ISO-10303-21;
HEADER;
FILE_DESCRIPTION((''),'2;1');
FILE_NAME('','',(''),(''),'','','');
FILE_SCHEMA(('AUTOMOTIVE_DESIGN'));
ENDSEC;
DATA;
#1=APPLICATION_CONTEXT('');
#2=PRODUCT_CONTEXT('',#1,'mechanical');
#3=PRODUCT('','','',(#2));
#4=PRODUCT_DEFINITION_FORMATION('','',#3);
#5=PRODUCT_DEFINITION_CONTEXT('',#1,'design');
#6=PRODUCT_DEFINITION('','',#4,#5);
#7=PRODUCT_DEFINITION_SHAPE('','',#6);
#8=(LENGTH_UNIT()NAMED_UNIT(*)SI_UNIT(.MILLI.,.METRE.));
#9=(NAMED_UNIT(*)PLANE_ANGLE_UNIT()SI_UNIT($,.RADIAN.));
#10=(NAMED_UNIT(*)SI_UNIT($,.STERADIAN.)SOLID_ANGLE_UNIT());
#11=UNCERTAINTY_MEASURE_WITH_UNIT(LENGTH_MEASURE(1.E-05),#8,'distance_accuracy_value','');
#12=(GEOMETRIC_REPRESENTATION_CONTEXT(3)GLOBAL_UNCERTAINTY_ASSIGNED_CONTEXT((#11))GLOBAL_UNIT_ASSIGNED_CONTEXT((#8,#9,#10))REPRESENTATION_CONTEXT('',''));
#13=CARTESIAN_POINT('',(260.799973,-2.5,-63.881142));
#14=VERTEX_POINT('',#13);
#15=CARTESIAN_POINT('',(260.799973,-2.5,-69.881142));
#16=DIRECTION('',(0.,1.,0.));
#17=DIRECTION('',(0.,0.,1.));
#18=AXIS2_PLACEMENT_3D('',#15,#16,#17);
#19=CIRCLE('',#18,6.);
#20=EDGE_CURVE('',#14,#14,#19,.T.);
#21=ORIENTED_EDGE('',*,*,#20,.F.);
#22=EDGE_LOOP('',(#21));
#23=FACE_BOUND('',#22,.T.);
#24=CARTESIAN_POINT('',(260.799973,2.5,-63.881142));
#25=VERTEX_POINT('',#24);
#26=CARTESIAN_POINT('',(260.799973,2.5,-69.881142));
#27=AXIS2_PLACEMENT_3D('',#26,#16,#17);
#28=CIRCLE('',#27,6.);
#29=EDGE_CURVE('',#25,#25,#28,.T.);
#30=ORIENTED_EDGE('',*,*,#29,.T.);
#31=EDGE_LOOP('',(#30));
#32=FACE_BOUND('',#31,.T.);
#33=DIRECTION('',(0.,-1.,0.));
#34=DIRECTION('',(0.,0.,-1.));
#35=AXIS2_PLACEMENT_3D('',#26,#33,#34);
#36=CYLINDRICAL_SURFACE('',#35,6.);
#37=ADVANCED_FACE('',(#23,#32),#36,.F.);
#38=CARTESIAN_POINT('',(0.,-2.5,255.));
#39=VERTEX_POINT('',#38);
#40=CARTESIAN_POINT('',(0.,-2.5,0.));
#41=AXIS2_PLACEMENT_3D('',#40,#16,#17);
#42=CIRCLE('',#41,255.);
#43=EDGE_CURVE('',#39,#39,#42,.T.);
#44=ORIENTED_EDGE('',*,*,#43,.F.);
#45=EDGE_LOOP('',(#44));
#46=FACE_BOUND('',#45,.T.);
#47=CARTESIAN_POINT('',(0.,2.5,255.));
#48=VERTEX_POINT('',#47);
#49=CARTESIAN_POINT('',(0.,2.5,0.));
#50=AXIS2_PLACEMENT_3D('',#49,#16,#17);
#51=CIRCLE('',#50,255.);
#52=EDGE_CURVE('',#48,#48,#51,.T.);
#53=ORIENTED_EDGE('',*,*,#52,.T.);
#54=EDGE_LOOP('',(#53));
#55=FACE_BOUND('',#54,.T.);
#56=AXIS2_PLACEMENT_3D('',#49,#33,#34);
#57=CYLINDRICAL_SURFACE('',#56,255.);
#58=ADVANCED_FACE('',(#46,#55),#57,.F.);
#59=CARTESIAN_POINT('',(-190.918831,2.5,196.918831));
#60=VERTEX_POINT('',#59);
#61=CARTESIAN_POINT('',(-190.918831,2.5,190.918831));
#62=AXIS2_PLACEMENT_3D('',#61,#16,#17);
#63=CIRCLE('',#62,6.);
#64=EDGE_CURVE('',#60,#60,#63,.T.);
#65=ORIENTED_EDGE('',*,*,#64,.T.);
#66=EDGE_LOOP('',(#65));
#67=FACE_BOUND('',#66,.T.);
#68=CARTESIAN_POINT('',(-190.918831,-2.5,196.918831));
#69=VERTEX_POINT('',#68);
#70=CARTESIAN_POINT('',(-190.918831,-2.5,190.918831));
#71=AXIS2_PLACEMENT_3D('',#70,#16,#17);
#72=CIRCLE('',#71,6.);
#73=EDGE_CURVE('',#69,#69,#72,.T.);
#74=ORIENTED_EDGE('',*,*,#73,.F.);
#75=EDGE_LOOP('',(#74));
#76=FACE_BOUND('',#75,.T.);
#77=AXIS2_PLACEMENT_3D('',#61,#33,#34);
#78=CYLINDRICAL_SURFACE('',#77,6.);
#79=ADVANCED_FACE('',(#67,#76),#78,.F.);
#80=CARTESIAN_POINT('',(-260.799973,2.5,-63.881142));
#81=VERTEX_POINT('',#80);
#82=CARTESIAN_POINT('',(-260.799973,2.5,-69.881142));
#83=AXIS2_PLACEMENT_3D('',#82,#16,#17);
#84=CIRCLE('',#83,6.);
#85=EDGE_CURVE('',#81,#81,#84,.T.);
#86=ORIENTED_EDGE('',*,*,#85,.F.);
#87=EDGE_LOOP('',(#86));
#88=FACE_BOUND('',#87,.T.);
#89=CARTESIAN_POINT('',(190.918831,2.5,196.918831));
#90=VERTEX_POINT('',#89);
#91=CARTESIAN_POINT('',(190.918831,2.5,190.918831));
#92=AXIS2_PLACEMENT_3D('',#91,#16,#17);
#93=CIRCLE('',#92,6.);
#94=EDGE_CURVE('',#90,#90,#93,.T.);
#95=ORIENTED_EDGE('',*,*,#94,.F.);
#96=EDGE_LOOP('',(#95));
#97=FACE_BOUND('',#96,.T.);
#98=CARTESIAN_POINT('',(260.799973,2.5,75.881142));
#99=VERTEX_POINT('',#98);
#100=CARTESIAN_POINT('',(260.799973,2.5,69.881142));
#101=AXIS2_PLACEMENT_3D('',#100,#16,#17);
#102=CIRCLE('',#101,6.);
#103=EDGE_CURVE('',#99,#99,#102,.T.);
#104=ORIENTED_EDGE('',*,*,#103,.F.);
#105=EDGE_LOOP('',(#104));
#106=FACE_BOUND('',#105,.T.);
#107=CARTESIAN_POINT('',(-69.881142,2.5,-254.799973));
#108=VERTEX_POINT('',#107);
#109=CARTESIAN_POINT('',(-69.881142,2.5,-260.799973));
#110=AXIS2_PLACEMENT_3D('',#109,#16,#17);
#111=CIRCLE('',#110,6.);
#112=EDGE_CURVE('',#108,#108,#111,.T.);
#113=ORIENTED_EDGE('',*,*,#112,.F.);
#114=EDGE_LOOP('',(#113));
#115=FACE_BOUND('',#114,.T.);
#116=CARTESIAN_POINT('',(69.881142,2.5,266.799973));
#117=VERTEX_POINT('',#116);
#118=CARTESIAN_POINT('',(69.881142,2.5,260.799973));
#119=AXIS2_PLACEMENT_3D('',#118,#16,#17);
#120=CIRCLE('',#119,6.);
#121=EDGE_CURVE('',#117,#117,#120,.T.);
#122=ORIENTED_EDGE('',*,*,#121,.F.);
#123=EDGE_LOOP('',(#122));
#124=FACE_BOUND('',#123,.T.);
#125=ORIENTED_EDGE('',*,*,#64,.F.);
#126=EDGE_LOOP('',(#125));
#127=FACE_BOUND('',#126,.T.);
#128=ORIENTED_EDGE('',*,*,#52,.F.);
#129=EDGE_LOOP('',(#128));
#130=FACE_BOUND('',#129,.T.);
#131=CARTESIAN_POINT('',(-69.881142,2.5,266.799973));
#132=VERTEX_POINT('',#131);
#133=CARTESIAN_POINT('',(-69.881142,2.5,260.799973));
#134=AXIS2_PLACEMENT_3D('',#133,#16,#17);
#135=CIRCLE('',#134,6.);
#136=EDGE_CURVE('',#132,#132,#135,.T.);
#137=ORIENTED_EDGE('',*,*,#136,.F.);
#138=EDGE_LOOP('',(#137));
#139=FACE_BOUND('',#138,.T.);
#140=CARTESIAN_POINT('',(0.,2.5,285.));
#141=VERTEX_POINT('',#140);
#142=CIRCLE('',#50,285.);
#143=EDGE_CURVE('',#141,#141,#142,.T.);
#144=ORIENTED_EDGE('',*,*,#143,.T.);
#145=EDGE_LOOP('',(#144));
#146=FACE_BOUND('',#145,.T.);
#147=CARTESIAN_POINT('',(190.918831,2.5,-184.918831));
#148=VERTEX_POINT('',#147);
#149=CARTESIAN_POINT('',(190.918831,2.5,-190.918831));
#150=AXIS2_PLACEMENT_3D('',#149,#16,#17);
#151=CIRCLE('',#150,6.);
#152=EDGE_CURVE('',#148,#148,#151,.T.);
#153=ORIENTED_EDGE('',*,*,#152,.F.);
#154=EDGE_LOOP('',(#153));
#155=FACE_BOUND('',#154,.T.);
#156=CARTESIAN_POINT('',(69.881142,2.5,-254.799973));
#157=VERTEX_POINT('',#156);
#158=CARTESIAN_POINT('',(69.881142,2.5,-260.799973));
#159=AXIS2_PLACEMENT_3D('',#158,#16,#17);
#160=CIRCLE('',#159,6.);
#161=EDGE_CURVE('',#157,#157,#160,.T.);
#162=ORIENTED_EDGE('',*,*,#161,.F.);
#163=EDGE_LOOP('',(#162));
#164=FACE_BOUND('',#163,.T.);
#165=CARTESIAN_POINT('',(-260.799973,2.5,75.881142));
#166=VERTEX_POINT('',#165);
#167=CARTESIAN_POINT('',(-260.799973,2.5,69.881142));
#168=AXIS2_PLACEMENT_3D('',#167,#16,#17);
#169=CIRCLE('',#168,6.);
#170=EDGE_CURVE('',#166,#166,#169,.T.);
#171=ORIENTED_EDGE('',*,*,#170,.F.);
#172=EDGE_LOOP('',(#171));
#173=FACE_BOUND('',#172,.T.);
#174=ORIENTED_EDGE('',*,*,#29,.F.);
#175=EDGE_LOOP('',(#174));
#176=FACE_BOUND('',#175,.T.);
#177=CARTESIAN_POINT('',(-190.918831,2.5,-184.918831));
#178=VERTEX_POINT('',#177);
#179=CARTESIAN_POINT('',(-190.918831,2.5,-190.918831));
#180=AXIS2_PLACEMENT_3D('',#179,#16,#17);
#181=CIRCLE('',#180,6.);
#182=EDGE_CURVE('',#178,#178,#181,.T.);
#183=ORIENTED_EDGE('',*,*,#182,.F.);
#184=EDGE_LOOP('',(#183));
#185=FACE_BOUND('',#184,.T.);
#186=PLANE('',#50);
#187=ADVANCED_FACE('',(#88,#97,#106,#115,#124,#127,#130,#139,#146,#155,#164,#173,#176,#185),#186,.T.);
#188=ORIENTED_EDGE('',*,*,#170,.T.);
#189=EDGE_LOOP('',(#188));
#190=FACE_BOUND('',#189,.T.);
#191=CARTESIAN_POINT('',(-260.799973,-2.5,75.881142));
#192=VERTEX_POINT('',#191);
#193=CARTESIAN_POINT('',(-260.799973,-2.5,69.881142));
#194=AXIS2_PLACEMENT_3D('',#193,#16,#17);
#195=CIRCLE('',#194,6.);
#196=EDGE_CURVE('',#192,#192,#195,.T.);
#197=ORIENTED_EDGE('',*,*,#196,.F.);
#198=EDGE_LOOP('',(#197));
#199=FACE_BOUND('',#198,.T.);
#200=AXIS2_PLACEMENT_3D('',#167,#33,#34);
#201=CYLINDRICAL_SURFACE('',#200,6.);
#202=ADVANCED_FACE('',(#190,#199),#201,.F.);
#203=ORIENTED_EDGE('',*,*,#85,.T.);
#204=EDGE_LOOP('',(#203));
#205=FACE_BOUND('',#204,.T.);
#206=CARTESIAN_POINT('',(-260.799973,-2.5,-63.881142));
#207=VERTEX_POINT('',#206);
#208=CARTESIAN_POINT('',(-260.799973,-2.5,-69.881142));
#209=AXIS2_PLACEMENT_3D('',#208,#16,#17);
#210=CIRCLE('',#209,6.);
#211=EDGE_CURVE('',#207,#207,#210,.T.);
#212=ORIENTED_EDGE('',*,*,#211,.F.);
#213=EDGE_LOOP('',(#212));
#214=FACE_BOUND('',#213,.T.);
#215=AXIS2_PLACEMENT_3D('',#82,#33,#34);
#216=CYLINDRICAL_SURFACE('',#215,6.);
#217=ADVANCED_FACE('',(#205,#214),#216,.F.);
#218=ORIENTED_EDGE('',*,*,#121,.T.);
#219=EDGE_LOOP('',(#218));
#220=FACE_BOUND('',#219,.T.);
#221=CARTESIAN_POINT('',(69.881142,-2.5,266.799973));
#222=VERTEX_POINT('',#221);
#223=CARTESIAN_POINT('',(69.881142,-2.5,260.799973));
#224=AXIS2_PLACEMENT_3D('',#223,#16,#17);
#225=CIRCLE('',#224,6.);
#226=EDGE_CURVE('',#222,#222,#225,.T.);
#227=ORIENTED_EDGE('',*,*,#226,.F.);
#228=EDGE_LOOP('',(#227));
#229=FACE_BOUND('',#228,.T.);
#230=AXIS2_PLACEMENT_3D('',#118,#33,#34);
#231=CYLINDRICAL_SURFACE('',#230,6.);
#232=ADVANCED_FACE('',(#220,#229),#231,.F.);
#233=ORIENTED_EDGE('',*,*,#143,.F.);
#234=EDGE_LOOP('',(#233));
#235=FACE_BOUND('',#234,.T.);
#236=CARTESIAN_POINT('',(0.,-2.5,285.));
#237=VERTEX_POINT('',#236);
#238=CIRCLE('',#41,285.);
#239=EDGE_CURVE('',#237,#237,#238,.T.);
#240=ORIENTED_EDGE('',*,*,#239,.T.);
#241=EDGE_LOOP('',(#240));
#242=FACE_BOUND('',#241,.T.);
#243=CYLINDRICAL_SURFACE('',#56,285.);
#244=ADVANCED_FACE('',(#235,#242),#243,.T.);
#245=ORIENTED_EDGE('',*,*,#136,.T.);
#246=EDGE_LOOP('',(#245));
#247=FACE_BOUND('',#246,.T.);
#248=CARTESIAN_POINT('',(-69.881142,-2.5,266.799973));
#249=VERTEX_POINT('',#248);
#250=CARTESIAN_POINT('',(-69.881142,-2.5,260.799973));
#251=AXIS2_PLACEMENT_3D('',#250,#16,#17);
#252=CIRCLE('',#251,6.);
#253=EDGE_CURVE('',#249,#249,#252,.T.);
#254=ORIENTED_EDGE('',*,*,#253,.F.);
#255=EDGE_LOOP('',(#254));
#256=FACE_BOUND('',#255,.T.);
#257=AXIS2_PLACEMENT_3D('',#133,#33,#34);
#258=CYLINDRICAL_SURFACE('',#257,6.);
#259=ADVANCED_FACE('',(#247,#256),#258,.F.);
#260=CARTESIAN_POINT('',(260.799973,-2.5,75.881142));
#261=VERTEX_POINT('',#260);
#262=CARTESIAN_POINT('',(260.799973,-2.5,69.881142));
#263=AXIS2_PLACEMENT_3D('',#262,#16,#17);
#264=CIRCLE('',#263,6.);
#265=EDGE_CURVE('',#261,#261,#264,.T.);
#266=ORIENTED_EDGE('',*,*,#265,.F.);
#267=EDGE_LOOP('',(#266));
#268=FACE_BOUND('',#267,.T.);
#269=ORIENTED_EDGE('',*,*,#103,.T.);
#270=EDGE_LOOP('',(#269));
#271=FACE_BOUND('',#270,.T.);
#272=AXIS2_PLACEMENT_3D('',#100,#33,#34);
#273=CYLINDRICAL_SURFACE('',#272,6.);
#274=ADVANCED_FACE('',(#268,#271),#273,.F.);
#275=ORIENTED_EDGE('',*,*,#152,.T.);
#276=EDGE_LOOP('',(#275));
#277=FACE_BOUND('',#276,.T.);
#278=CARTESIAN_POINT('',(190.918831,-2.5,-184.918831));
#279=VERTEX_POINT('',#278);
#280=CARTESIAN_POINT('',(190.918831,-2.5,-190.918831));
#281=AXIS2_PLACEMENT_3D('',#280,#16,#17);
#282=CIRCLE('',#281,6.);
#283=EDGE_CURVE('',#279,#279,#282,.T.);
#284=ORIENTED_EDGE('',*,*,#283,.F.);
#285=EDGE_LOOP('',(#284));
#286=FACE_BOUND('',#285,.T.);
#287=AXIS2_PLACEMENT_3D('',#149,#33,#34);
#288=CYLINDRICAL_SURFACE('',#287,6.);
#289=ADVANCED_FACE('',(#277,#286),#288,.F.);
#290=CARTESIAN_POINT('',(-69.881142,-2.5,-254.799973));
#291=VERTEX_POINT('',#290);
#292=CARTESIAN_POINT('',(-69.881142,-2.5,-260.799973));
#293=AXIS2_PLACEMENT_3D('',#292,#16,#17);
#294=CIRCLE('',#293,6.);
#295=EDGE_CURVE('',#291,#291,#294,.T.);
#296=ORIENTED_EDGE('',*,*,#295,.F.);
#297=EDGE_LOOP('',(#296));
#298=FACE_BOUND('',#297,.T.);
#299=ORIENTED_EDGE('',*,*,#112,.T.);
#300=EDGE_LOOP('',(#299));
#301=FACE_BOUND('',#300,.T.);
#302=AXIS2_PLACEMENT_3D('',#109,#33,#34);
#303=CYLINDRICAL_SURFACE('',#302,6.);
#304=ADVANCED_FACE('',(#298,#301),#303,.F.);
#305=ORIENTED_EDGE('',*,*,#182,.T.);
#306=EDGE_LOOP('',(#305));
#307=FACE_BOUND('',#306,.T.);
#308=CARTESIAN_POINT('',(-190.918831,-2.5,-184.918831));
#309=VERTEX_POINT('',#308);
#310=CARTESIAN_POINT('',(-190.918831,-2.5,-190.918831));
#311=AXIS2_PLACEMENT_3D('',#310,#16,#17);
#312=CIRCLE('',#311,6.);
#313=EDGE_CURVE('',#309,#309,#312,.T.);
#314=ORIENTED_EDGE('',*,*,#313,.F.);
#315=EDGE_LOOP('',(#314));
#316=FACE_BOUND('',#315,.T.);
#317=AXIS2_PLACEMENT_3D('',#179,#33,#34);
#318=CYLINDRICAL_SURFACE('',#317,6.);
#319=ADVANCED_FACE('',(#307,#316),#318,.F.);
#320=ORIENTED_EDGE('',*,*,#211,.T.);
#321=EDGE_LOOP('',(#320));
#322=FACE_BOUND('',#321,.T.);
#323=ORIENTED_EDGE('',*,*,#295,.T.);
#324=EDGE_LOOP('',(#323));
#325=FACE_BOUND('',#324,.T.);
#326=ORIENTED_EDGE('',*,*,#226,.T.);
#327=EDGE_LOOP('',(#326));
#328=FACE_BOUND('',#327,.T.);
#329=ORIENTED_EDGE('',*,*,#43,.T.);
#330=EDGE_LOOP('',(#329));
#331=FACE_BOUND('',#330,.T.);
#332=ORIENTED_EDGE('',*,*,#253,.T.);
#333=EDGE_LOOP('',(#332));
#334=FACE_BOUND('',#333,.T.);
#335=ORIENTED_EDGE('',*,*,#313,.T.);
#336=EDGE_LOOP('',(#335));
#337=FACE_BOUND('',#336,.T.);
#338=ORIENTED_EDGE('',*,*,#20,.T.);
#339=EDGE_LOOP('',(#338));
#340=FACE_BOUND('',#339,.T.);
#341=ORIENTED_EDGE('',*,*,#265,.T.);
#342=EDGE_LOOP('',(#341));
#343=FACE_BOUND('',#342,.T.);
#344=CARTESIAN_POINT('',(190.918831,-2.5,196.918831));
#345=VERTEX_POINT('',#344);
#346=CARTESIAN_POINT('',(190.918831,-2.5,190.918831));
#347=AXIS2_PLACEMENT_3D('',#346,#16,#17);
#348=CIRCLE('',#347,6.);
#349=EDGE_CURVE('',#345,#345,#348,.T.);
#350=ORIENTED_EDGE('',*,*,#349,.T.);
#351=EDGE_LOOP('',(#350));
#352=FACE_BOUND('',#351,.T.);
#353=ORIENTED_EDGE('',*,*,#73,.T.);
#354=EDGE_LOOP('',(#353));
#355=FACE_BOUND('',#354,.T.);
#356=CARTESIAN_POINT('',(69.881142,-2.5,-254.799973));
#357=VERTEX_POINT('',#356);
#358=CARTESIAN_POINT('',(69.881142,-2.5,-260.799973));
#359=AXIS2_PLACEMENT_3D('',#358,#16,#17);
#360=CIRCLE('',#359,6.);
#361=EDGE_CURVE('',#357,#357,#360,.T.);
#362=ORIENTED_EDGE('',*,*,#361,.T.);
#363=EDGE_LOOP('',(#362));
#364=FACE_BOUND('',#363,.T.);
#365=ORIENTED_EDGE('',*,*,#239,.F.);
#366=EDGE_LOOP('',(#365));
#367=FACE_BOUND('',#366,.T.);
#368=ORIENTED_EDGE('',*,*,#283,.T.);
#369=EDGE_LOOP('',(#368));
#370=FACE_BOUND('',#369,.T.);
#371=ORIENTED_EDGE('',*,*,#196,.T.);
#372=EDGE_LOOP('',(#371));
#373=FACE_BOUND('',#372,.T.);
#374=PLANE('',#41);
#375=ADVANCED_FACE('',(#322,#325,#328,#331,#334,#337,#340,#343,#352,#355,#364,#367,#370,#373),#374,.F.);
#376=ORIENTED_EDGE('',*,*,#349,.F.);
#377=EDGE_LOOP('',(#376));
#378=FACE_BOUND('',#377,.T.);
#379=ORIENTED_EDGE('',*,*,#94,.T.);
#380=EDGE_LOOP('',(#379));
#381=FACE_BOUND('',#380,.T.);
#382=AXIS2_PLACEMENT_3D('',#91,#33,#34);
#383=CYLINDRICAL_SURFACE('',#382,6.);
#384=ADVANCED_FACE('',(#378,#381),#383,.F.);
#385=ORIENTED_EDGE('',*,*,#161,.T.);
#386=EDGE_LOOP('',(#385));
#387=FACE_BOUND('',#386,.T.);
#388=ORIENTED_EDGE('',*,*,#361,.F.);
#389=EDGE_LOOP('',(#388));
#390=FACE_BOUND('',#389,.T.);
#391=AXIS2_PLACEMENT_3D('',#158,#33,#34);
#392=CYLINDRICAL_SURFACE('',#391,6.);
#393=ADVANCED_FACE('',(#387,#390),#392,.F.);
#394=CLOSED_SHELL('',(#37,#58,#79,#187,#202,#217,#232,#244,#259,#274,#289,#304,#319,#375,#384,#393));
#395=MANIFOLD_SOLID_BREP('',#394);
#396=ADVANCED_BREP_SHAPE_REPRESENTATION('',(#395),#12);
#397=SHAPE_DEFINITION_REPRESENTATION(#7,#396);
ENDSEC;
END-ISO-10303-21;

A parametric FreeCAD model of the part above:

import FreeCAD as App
import Part
import Sketcher

doc = App.newDocument("Part")
body = doc.addObject("PartDesign::Body", "Body")

# Sketch on XZ plane
sketch1 = body.newObject("Sketcher::SketchObject", "Sketch")
sketch1.AttachmentSupport = (doc.getObject("XZ_Plane"), [""])
sketch1.MapMode = "FlatFace"
sketch1.addGeometry([
    Part.Circle(App.Vector(0, 0, 0), App.Vector(0, 0, 1), 285),  # 0
    Part.Circle(App.Vector(-190.918831, 190.918831, 0), App.Vector(0, 0, 1), 6),  # 1
    Part.Circle(App.Vector(-69.881142, 260.799973, 0), App.Vector(0, 0, 1), 6),  # 2
    Part.Circle(App.Vector(-260.799973, 69.881142, 0), App.Vector(0, 0, 1), 6),  # 3
    Part.Circle(App.Vector(69.881142, 260.799973, 0), App.Vector(0, 0, 1), 6),  # 4
    Part.Circle(App.Vector(190.918831, 190.918831, 0), App.Vector(0, 0, 1), 6),  # 5
    Part.Circle(App.Vector(260.799973, 69.881142, 0), App.Vector(0, 0, 1), 6),  # 6
    Part.Circle(App.Vector(-260.799973, -69.881142, 0), App.Vector(0, 0, 1), 6),  # 7
    Part.Circle(App.Vector(-190.918831, -190.918831, 0), App.Vector(0, 0, 1), 6),  # 8
    Part.Circle(App.Vector(-69.881142, -260.799973, 0), App.Vector(0, 0, 1), 6),  # 9
    Part.Circle(App.Vector(0, 0, 0), App.Vector(0, 0, 1), 255),  # 10
    Part.Circle(App.Vector(260.799973, -69.881142, 0), App.Vector(0, 0, 1), 6),  # 11
    Part.Circle(App.Vector(69.881142, -260.799973, 0), App.Vector(0, 0, 1), 6),  # 12
    Part.Circle(App.Vector(190.918831, -190.918831, 0), App.Vector(0, 0, 1), 6),  # 13
], False)
sketch1.addConstraint([
    Sketcher.Constraint("Coincident", 0, 3, -1, 1),
    Sketcher.Constraint("Coincident", 10, 3, -1, 1),
    Sketcher.Constraint("Equal", 1, 2),
    Sketcher.Constraint("Equal", 2, 3),
    Sketcher.Constraint("Equal", 3, 4),
    Sketcher.Constraint("Equal", 4, 5),
    Sketcher.Constraint("Equal", 5, 6),
    Sketcher.Constraint("Equal", 6, 7),
    Sketcher.Constraint("Equal", 7, 8),
    Sketcher.Constraint("Equal", 8, 9),
    Sketcher.Constraint("Equal", 9, 11),
    Sketcher.Constraint("Equal", 11, 12),
    Sketcher.Constraint("Equal", 12, 13),
    Sketcher.Constraint("Symmetric", 6, 3, 7, 3, -1, 1),
    Sketcher.Constraint("Symmetric", 5, 3, 8, 3, -1, 1),
    Sketcher.Constraint("Symmetric", 4, 3, 9, 3, -1, 1),
    Sketcher.Constraint("Symmetric", 3, 3, 11, 3, -1, 1),
    Sketcher.Constraint("Symmetric", 2, 3, 12, 3, -1, 1),
    Sketcher.Constraint("Symmetric", 1, 3, 13, 3, -1, 1),
    Sketcher.Constraint("Symmetric", 2, 3, 4, 3, -2),
    Sketcher.Constraint("Symmetric", 1, 3, 5, 3, -2),
    Sketcher.Constraint("Symmetric", 3, 3, 6, 3, -2),
    Sketcher.Constraint("Diameter", 0, 570.0),
    Sketcher.Constraint("Diameter", 1, 12.0),
    Sketcher.Constraint("Diameter", 10, 510.0),
    Sketcher.Constraint("DistanceX", 1, 3, -1, 1, 190.918831),
    Sketcher.Constraint("DistanceY", -1, 1, 1, 3, 190.918831),
    Sketcher.Constraint("DistanceX", 1, 3, 2, 3, 121.037689),
    Sketcher.Constraint("DistanceY", 3, 3, 1, 3, 121.037689),
    Sketcher.Constraint("DistanceX", 3, 3, 2, 3, 190.918831),
    Sketcher.Constraint("DistanceY", 3, 3, 2, 3, 190.918831),
])
pad1 = body.newObject("PartDesign::Pad", "Pad")
pad1.Profile = sketch1
pad1.Length = 5
pad1.Midplane = True

doc.recompute()
